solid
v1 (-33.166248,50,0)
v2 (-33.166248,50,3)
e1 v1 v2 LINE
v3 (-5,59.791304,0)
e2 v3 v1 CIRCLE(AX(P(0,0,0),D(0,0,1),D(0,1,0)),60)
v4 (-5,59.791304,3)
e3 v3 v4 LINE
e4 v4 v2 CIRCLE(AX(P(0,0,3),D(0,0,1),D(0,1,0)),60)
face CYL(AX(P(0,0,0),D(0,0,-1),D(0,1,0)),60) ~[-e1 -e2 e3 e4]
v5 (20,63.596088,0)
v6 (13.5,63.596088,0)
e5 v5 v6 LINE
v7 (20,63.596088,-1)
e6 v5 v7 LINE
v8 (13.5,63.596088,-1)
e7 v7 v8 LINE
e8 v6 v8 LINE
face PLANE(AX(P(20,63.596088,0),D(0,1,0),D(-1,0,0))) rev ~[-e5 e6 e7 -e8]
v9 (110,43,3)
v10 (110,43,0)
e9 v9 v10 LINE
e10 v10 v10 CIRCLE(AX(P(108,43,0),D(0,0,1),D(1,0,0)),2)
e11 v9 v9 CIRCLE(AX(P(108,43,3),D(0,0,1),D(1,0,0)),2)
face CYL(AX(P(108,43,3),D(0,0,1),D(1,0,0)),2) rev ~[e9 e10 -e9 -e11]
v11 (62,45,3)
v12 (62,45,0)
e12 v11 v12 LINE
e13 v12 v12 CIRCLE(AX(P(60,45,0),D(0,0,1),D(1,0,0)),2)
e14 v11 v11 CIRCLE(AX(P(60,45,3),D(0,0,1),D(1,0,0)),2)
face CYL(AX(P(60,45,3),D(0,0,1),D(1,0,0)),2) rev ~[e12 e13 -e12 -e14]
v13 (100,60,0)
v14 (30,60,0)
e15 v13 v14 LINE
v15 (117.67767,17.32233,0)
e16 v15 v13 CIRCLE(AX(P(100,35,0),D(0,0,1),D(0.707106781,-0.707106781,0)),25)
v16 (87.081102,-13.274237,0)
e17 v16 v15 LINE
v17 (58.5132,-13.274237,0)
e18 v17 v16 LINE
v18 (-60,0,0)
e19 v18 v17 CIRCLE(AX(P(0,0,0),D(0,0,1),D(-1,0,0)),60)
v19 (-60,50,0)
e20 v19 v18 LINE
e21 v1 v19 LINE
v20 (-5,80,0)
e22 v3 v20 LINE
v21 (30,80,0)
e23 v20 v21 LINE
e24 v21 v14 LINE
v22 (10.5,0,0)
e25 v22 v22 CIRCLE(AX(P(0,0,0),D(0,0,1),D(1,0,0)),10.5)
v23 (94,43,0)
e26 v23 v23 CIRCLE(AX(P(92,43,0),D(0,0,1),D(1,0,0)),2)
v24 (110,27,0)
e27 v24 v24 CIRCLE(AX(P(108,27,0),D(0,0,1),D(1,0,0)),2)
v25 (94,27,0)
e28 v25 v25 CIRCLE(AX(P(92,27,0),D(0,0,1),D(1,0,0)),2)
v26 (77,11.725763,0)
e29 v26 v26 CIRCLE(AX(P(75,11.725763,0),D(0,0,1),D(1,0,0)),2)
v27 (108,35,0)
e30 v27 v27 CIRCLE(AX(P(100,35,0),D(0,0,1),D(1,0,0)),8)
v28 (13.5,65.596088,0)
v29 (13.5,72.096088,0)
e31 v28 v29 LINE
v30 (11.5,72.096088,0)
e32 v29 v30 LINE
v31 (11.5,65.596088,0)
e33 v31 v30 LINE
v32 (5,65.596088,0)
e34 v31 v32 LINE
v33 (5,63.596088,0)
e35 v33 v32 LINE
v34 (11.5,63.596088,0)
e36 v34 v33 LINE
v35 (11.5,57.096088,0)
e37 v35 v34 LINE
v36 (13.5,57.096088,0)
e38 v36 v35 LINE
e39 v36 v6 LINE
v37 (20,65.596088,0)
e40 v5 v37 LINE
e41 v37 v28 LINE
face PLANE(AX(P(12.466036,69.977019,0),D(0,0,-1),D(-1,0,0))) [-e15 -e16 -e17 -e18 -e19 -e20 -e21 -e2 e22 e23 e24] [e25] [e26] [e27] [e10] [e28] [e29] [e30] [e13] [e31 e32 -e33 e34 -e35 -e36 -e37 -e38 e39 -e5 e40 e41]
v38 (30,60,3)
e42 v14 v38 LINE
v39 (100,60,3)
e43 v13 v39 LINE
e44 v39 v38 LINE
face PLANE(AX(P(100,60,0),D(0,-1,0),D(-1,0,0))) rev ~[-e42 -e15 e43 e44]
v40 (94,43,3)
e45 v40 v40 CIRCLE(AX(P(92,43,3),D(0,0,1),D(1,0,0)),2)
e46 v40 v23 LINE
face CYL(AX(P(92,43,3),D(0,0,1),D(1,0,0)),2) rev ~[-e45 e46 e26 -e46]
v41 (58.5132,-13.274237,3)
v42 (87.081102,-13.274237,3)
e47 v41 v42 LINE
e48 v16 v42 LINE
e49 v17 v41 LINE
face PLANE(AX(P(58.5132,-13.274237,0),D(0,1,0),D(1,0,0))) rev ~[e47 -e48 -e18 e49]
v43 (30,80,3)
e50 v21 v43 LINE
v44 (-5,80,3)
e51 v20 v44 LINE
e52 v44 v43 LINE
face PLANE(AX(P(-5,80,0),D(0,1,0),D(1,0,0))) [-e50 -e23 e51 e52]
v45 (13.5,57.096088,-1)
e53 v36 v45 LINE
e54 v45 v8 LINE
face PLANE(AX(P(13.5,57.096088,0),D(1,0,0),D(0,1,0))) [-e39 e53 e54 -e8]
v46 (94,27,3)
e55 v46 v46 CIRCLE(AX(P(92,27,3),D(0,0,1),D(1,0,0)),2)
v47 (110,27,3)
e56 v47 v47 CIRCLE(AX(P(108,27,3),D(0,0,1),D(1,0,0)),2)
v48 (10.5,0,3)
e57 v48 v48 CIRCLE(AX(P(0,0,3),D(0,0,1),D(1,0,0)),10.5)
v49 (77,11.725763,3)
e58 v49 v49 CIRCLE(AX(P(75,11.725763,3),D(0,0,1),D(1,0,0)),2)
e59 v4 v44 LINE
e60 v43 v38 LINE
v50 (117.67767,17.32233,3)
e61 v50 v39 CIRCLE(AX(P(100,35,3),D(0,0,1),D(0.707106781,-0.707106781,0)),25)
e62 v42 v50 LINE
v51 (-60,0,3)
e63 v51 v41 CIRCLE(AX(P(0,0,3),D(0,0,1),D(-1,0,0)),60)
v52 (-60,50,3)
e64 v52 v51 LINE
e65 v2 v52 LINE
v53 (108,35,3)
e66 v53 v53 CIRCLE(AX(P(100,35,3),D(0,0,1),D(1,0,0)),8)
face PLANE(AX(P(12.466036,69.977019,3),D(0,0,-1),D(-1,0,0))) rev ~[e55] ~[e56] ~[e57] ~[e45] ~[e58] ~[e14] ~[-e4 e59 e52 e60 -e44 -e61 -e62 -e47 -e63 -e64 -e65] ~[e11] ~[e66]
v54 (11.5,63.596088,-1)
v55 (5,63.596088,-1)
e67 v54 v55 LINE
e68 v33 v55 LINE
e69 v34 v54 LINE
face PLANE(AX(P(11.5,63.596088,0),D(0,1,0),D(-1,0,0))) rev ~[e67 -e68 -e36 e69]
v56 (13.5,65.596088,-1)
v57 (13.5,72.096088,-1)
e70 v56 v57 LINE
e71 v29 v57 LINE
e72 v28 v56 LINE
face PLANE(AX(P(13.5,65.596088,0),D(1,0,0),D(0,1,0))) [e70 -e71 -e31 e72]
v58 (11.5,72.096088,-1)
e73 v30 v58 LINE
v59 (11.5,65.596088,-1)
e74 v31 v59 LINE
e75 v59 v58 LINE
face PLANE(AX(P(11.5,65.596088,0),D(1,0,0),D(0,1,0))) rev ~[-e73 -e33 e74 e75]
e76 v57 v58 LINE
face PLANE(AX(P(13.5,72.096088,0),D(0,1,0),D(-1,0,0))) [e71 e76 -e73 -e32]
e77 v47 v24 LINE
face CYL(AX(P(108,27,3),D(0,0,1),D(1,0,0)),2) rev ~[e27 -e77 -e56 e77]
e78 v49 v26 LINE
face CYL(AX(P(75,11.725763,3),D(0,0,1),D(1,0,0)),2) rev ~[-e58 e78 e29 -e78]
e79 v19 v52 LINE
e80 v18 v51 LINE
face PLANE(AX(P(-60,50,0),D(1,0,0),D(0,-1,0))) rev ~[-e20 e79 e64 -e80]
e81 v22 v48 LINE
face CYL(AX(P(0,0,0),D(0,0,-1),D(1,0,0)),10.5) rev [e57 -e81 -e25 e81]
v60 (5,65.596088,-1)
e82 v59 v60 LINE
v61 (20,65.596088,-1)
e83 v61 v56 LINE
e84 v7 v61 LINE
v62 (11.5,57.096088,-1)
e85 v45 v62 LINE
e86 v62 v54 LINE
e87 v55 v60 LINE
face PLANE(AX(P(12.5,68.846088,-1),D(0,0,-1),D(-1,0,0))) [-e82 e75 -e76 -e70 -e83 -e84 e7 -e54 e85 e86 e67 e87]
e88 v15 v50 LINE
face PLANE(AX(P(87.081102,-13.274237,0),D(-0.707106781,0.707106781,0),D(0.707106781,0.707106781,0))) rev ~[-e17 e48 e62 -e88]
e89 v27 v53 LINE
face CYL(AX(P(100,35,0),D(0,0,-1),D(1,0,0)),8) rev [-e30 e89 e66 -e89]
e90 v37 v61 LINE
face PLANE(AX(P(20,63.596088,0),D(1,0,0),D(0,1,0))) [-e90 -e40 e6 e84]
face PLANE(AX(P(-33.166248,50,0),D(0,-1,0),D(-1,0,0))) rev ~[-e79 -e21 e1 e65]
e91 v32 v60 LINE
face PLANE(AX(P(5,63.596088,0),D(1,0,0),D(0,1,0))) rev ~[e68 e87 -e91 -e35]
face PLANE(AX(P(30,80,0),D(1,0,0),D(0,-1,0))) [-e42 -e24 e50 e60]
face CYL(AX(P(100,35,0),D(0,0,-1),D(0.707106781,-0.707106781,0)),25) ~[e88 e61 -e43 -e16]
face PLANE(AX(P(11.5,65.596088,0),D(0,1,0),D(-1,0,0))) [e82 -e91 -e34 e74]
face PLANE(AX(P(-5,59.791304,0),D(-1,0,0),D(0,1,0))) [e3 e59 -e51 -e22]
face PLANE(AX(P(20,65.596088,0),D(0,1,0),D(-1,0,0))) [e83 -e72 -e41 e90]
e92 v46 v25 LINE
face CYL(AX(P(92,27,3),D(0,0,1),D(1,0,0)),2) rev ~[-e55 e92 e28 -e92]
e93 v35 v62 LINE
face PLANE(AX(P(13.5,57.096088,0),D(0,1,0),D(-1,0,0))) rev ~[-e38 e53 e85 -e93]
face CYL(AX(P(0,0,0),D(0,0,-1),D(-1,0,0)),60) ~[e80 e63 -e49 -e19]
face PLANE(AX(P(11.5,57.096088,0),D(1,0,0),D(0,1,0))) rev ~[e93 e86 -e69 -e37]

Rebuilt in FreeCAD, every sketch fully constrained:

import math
import FreeCAD as App
import Part
import Sketcher
Q = App.Units.Quantity

doc = App.newDocument("Part")
body = doc.addObject("PartDesign::Body", "Body")

# Sketch on XY plane
sketch1 = doc.addObject("Sketcher::SketchObject", "Sketch")
body.addObject(sketch1)
sketch1.AttachmentSupport = (doc.XY_Plane, [""])
sketch1.MapMode = "FlatFace"
sketch1.addGeometry(Part.LineSegment(App.Vector(-33, 50, 0), App.Vector(-60, 50, 0)), False)
sketch1.addGeometry(Part.LineSegment(App.Vector(-60, 50, 0), App.Vector(-60, 0, 0)), False)
sketch1.addGeometry(Part.ArcOfCircle(Part.Circle(App.Vector(0, 0, 0), App.Vector(0, 0, 1), 60), math.radians(180), math.radians(347)), False)
sketch1.addGeometry(Part.LineSegment(App.Vector(59, -13, 0), App.Vector(87, -13, 0)), False)
sketch1.addGeometry(Part.LineSegment(App.Vector(87, -13, 0), App.Vector(118, 17, 0)), False)
sketch1.addGeometry(Part.ArcOfCircle(Part.Circle(App.Vector(100, 35, 0), App.Vector(0, 0, 1), 25), math.radians(-45), math.radians(90)), False)
sketch1.addGeometry(Part.LineSegment(App.Vector(100, 60, 0), App.Vector(0, 60, 0)), False)
sketch1.addGeometry(Part.ArcOfCircle(Part.Circle(App.Vector(0, 0, 0), App.Vector(0, 0, 1), 60), math.radians(90), math.radians(124)), False)
sketch1.addGeometry(Part.Circle(App.Vector(100, 35, 0), App.Vector(0, 0, 1), 8), False)
sketch1.addGeometry(Part.Circle(App.Vector(0, 0, 0), App.Vector(0, 0, 1), 10), False)
sketch1.addConstraint(Sketcher.Constraint("Coincident", 0, 2, 1, 1))
sketch1.addConstraint(Sketcher.Constraint("Tangent", 1, 2, 2, 1))
sketch1.addConstraint(Sketcher.Constraint("Coincident", 2, 2, 3, 1))
sketch1.addConstraint(Sketcher.Constraint("Coincident", 3, 2, 4, 1))
sketch1.addConstraint(Sketcher.Constraint("Tangent", 4, 2, 5, 1))
sketch1.addConstraint(Sketcher.Constraint("Tangent", 5, 2, 6, 1))
sketch1.addConstraint(Sketcher.Constraint("Tangent", 6, 2, 7, 1))
sketch1.addConstraint(Sketcher.Constraint("Coincident", 7, 2, 0, 1))
sketch1.addConstraint(Sketcher.Constraint("Horizontal", 0))
sketch1.addConstraint(Sketcher.Constraint("Vertical", 1))
sketch1.addConstraint(Sketcher.Constraint("Horizontal", 3))
sketch1.addConstraint(Sketcher.Constraint("Horizontal", 6))
sketch1.addConstraint(Sketcher.Constraint("Coincident", 2, 3, -1, 1))
sketch1.addConstraint(Sketcher.Constraint("Coincident", 7, 3, -1, 1))
sketch1.addConstraint(Sketcher.Constraint("Coincident", 9, 3, -1, 1))
sketch1.addConstraint(Sketcher.Constraint("Coincident", 8, 3, 5, 3))
sketch1.addConstraint(Sketcher.Constraint("Equal", 2, 7))
sketch1.addConstraint(Sketcher.Constraint("Diameter", 8, 16.0))
sketch1.addConstraint(Sketcher.Constraint("Diameter", 9, 21.0))
sketch1.addConstraint(Sketcher.Constraint("Radius", 2, 60.0))
sketch1.addConstraint(Sketcher.Constraint("Radius", 5, 25.0))
sketch1.addConstraint(Sketcher.Constraint("DistanceX", 6, 2, 6, 1, 100.0))
sketch1.addConstraint(Sketcher.Constraint("DistanceY", 1, 2, 1, 1, 50.0))
sketch1.addConstraint(Sketcher.Constraint("Angle", 4, Q("45 deg")))
sketch1.addConstraint(Sketcher.Constraint("DistanceX", 3, 1, 3, 2, 28.567901))
pad1 = doc.addObject("PartDesign::Pad", "Pad")
body.addObject(pad1)
pad1.Profile = sketch1
pad1.Length = 3

# Sketch on XY plane
sketch2 = doc.addObject("Sketcher::SketchObject", "Sketch001")
body.addObject(sketch2)
sketch2.AttachmentSupport = (doc.XY_Plane, [""])
sketch2.MapMode = "FlatFace"
sketch2.AttachmentOffset = App.Placement(App.Vector(0, 0, 3), App.Rotation())
sketch2.addGeometry(Part.Circle(App.Vector(60, 45, 0), App.Vector(0, 0, 1), 2), False)
sketch2.addConstraint(Sketcher.Constraint("Diameter", 0, 4.0))
sketch2.addConstraint(Sketcher.Constraint("DistanceX", -1, 1, 0, 3, 60.0))
sketch2.addConstraint(Sketcher.Constraint("DistanceY", -1, 1, 0, 3, 45.0))
pocket1 = doc.addObject("PartDesign::Pocket", "Pocket")
body.addObject(pocket1)
pocket1.Profile = sketch2
pocket1.Type = "UpToFirst"

# Sketch on XY plane
sketch3 = doc.addObject("Sketcher::SketchObject", "Sketch002")
body.addObject(sketch3)
sketch3.AttachmentSupport = (doc.XY_Plane, [""])
sketch3.MapMode = "FlatFace"
sketch3.AttachmentOffset = App.Placement(App.Vector(0, 0, 3), App.Rotation())
sketch3.addGeometry(Part.Circle(App.Vector(75, 11.7, 0), App.Vector(0, 0, 1), 2), False)
sketch3.addConstraint(Sketcher.Constraint("Diameter", 0, 4.0))
sketch3.addConstraint(Sketcher.Constraint("DistanceX", -1, 1, 0, 3, 75.0))
sketch3.addConstraint(Sketcher.Constraint("DistanceY", -1, 1, 0, 3, 11.725763))
pocket2 = doc.addObject("PartDesign::Pocket", "Pocket001")
body.addObject(pocket2)
pocket2.Profile = sketch3
pocket2.Type = "UpToFirst"

# Sketch on XY plane
sketch4 = doc.addObject("Sketcher::SketchObject", "Sketch003")
body.addObject(sketch4)
sketch4.AttachmentSupport = (doc.XY_Plane, [""])
sketch4.MapMode = "FlatFace"
sketch4.addGeometry(Part.LineSegment(App.Vector(30, 80, 0), App.Vector(30, 60, 0)), False)
sketch4.addGeometry(Part.LineSegment(App.Vector(30, 60, 0), App.Vector(0, 60, 0)), False)
sketch4.addGeometry(Part.ArcOfCircle(Part.Circle(App.Vector(0, 0, 0), App.Vector(0, 0, 1), 60), math.radians(90), math.radians(94.78)), False)
sketch4.addGeometry(Part.LineSegment(App.Vector(-5, 60, 0), App.Vector(-5, 80, 0)), False)
sketch4.addGeometry(Part.LineSegment(App.Vector(-5, 80, 0), App.Vector(30, 80, 0)), False)
sketch4.addConstraint(Sketcher.Constraint("Coincident", 0, 2, 1, 1))
sketch4.addConstraint(Sketcher.Constraint("Tangent", 1, 2, 2, 1))
sketch4.addConstraint(Sketcher.Constraint("Coincident", 2, 2, 3, 1))
sketch4.addConstraint(Sketcher.Constraint("Coincident", 3, 2, 4, 1))
sketch4.addConstraint(Sketcher.Constraint("Coincident", 4, 2, 0, 1))
sketch4.addConstraint(Sketcher.Constraint("Vertical", 0))
sketch4.addConstraint(Sketcher.Constraint("Horizontal", 1))
sketch4.addConstraint(Sketcher.Constraint("Vertical", 3))
sketch4.addConstraint(Sketcher.Constraint("Horizontal", 4))
sketch4.addConstraint(Sketcher.Constraint("Coincident", 2, 3, -1, 1))
sketch4.addConstraint(Sketcher.Constraint("Radius", 2, 60.0))
sketch4.addConstraint(Sketcher.Constraint("DistanceX", 1, 2, 1, 1, 30.0))
sketch4.addConstraint(Sketcher.Constraint("DistanceX", 4, 1, 4, 2, 35.0))
sketch4.addConstraint(Sketcher.Constraint("DistanceY", 0, 2, 0, 1, 20.0))
pad2 = doc.addObject("PartDesign::Pad", "Pad001")
body.addObject(pad2)
pad2.Profile = sketch4
pad2.Length = 3

# Sketch on XY plane
sketch5 = doc.addObject("Sketcher::SketchObject", "Sketch004")
body.addObject(sketch5)
sketch5.AttachmentSupport = (doc.XY_Plane, [""])
sketch5.MapMode = "FlatFace"
sketch5.addGeometry(Part.LineSegment(App.Vector(13.5, 72.1, 0), App.Vector(13.5, 65.6, 0)), False)
sketch5.addGeometry(Part.LineSegment(App.Vector(13.5, 65.6, 0), App.Vector(20, 65.6, 0)), False)
sketch5.addGeometry(Part.LineSegment(App.Vector(20, 65.6, 0), App.Vector(20, 63.6, 0)), False)
sketch5.addGeometry(Part.LineSegment(App.Vector(20, 63.6, 0), App.Vector(13.5, 63.6, 0)), False)
sketch5.addGeometry(Part.LineSegment(App.Vector(13.5, 63.6, 0), App.Vector(13.5, 57.1, 0)), False)
sketch5.addGeometry(Part.LineSegment(App.Vector(13.5, 57.1, 0), App.Vector(11.5, 57.1, 0)), False)
sketch5.addGeometry(Part.LineSegment(App.Vector(11.5, 57.1, 0), App.Vector(11.5, 63.6, 0)), False)
sketch5.addGeometry(Part.LineSegment(App.Vector(11.5, 63.6, 0), App.Vector(5, 63.6, 0)), False)
sketch5.addGeometry(Part.LineSegment(App.Vector(5, 63.6, 0), App.Vector(5, 65.6, 0)), False)
sketch5.addGeometry(Part.LineSegment(App.Vector(5, 65.6, 0), App.Vector(11.5, 65.6, 0)), False)
sketch5.addGeometry(Part.LineSegment(App.Vector(11.5, 65.6, 0), App.Vector(11.5, 72.1, 0)), False)
sketch5.addGeometry(Part.LineSegment(App.Vector(11.5, 72.1, 0), App.Vector(13.5, 72.1, 0)), False)
sketch5.addConstraint(Sketcher.Constraint("Coincident", 0, 2, 1, 1))
sketch5.addConstraint(Sketcher.Constraint("Coincident", 1, 2, 2, 1))
sketch5.addConstraint(Sketcher.Constraint("Coincident", 2, 2, 3, 1))
sketch5.addConstraint(Sketcher.Constraint("Coincident", 3, 2, 4, 1))
sketch5.addConstraint(Sketcher.Constraint("Coincident", 4, 2, 5, 1))
sketch5.addConstraint(Sketcher.Constraint("Coincident", 5, 2, 6, 1))
sketch5.addConstraint(Sketcher.Constraint("Coincident", 6, 2, 7, 1))
sketch5.addConstraint(Sketcher.Constraint("Coincident", 7, 2, 8, 1))
sketch5.addConstraint(Sketcher.Constraint("Coincident", 8, 2, 9, 1))
sketch5.addConstraint(Sketcher.Constraint("Coincident", 9, 2, 10, 1))
sketch5.addConstraint(Sketcher.Constraint("Coincident", 10, 2, 11, 1))
sketch5.addConstraint(Sketcher.Constraint("Coincident", 11, 2, 0, 1))
sketch5.addConstraint(Sketcher.Constraint("Vertical", 0))
sketch5.addConstraint(Sketcher.Constraint("Horizontal", 1))
sketch5.addConstraint(Sketcher.Constraint("Vertical", 2))
sketch5.addConstraint(Sketcher.Constraint("Horizontal", 3))
sketch5.addConstraint(Sketcher.Constraint("Vertical", 4))
sketch5.addConstraint(Sketcher.Constraint("Horizontal", 5))
sketch5.addConstraint(Sketcher.Constraint("Vertical", 6))
sketch5.addConstraint(Sketcher.Constraint("Horizontal", 7))
sketch5.addConstraint(Sketcher.Constraint("Vertical", 8))
sketch5.addConstraint(Sketcher.Constraint("Horizontal", 9))
sketch5.addConstraint(Sketcher.Constraint("Vertical", 10))
sketch5.addConstraint(Sketcher.Constraint("Horizontal", 11))
sketch5.addConstraint(Sketcher.Constraint("Horizontal", 3, 2, 6, 2))
sketch5.addConstraint(Sketcher.Constraint("Horizontal", 1, 2, 8, 2))
sketch5.addConstraint(Sketcher.Constraint("Vertical", 0, 2, 3, 2))
sketch5.addConstraint(Sketcher.Constraint("Vertical", 6, 2, 9, 2))
sketch5.addConstraint(Sketcher.Constraint("Equal", 3, 7))
sketch5.addConstraint(Sketcher.Constraint("Equal", 9, 0))
sketch5.addConstraint(Sketcher.Constraint("Equal", 11, 2))
sketch5.addConstraint(Sketcher.Constraint("Equal", 0, 4))
sketch5.addConstraint(Sketcher.Constraint("DistanceX", 5, 2, 5, 1, 2.0))
sketch5.addConstraint(Sketcher.Constraint("DistanceX", 1, 1, 1, 2, 6.5))
sketch5.addConstraint(Sketcher.Constraint("DistanceX", -1, 1, 1, 2, 20.0))
sketch5.addConstraint(Sketcher.Constraint("DistanceY", -1, 1, 0, 2, 65.596088))
pad3 = doc.addObject("PartDesign::Pad", "Pad002")
body.addObject(pad3)
pad3.Profile = sketch5
pad3.Length = 1
pad3.Reversed = True

# Sketch on XY plane
sketch6 = doc.addObject("Sketcher::SketchObject", "Sketch005")
body.addObject(sketch6)
sketch6.AttachmentSupport = (doc.XY_Plane, [""])
sketch6.MapMode = "FlatFace"
sketch6.AttachmentOffset = App.Placement(App.Vector(0, 0, 3), App.Rotation())
sketch6.addGeometry(Part.Circle(App.Vector(92, 43, 0), App.Vector(0, 0, 1), 2), False)
sketch6.addGeometry(Part.Circle(App.Vector(108, 43, 0), App.Vector(0, 0, 1), 2), False)
sketch6.addGeometry(Part.Circle(App.Vector(108, 27, 0), App.Vector(0, 0, 1), 2), False)
sketch6.addGeometry(Part.Circle(App.Vector(92, 27, 0), App.Vector(0, 0, 1), 2), False)
sketch6.addConstraint(Sketcher.Constraint("Equal", 0, 1))
sketch6.addConstraint(Sketcher.Constraint("Equal", 1, 2))
sketch6.addConstraint(Sketcher.Constraint("Equal", 2, 3))
sketch6.addConstraint(Sketcher.Constraint("Horizontal", 0, 3, 1, 3))
sketch6.addConstraint(Sketcher.Constraint("Horizontal", 2, 3, 3, 3))
sketch6.addConstraint(Sketcher.Constraint("Vertical", 1, 3, 2, 3))
sketch6.addConstraint(Sketcher.Constraint("Vertical", 0, 3, 3, 3))
sketch6.addConstraint(Sketcher.Constraint("Diameter", 0, 4.0))
sketch6.addConstraint(Sketcher.Constraint("DistanceX", -1, 1, 0, 3, 92.0))
sketch6.addConstraint(Sketcher.Constraint("DistanceY", -1, 1, 0, 3, 43.0))
sketch6.addConstraint(Sketcher.Constraint("DistanceX", -1, 1, 1, 3, 108.0))
sketch6.addConstraint(Sketcher.Constraint("DistanceY", -1, 1, 2, 3, 27.0))
pocket3 = doc.addObject("PartDesign::Pocket", "Pocket002")
body.addObject(pocket3)
pocket3.Profile = sketch6
pocket3.Length = 10

doc.recompute()
